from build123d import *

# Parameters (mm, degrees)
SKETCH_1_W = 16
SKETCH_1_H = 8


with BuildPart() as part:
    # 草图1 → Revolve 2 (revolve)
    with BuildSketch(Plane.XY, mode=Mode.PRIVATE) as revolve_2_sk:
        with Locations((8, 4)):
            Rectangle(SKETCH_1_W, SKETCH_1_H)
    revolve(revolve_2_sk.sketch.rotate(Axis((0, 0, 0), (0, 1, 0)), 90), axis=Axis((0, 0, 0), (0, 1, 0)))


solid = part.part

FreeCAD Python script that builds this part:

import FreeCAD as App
import Part
import Sketcher

V = App.Vector


def add_polygon(sketch, points):
    """Adds a closed chain of lines whose ends are joined by coincident constraints."""
    first, n = sketch.GeometryCount, len(points)
    for a, b in zip(points, points[1:] + points[:1]):
        sketch.addGeometry(Part.LineSegment(App.Vector(*a, 0), App.Vector(*b, 0)), False)
    for i in range(n):
        sketch.addConstraint(Sketcher.Constraint("Coincident", first + i, 2, first + (i + 1) % n, 1))

doc = App.newDocument("Part")
body = doc.addObject("PartDesign::Body", "Body")

# Sketch on XY plane
sketch1 = body.newObject("Sketcher::SketchObject", "Sketch")
sketch1.AttachmentSupport = (doc.getObject("XY_Plane"), [""])
sketch1.MapMode = "FlatFace"
add_polygon(sketch1, [(0, 8), (0, 0), (16, 0), (16, 8)])  # lines 0-3
sketch1.addConstraint([
    Sketcher.Constraint("Vertical", 0),
    Sketcher.Constraint("Horizontal", 1),
    Sketcher.Constraint("Vertical", 2),
    Sketcher.Constraint("Horizontal", 3),
    Sketcher.Constraint("Coincident", 0, 2, -1, 1),
    Sketcher.Constraint("DistanceX", 1, 1, 1, 2, 16.0),
    Sketcher.Constraint("DistanceY", 0, 2, 0, 1, 8.0),
])
revolution = body.newObject("PartDesign::Revolution", "Revolution")
revolution.Profile = sketch1
revolution.ReferenceAxis = (sketch1, ["V_Axis"])
revolution.Angle = 360

doc.recompute()
